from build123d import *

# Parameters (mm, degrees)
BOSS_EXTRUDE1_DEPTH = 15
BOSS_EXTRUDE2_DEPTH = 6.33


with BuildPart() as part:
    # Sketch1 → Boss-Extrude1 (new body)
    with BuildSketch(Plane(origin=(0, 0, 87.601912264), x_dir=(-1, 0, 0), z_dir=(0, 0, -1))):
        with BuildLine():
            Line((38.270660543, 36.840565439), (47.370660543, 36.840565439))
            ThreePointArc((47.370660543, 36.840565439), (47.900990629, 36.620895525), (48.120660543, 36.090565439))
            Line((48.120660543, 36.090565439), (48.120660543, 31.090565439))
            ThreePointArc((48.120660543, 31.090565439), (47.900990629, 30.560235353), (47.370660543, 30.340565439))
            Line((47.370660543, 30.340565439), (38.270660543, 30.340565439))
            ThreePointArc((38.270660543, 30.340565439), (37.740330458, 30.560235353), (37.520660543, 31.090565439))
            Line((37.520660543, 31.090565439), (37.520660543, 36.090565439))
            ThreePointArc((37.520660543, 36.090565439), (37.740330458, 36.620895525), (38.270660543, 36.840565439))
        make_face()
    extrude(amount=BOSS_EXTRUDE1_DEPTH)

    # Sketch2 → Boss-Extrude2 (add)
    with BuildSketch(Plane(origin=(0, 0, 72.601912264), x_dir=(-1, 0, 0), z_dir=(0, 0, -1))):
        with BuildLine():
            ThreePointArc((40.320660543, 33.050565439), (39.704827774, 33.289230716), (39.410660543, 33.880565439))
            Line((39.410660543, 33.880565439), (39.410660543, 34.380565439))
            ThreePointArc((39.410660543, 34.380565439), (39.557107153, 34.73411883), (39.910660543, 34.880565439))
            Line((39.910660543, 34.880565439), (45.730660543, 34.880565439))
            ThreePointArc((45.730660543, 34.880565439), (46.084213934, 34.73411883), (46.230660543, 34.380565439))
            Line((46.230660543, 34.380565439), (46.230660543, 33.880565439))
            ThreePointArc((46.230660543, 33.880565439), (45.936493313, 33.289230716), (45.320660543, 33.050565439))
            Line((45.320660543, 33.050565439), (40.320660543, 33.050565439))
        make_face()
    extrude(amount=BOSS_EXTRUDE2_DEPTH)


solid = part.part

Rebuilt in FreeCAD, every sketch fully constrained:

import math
import FreeCAD as App
import Part
import Sketcher

V = App.Vector

doc = App.newDocument("Part")
body = doc.addObject("PartDesign::Body", "Body")

# Sketch on XY plane
sketch1 = doc.addObject("Sketcher::SketchObject", "Sketch")
body.addObject(sketch1)
sketch1.AttachmentSupport = (doc.XY_Plane, [""])
sketch1.MapMode = "FlatFace"
sketch1.AttachmentOffset = App.Placement(V(0, 0, 87.601912), App.Rotation())
sketch1.addGeometry([
    Part.LineSegment(V(-47.370661, 36.840565, 0), V(-38.270661, 36.840565, 0)),  # 0
    Part.ArcOfCircle(Part.Circle(V(-38.270661, 36.090565, 0), V(0, 0, 1), 0.75), math.radians(0), math.radians(90)),  # 1
    Part.LineSegment(V(-37.520661, 36.090565, 0), V(-37.520661, 31.090565, 0)),  # 2
    Part.ArcOfCircle(Part.Circle(V(-38.270661, 31.090565, 0), V(0, 0, 1), 0.75), math.radians(-90), math.radians(0)),  # 3
    Part.LineSegment(V(-38.270661, 30.340565, 0), V(-47.370661, 30.340565, 0)),  # 4
    Part.ArcOfCircle(Part.Circle(V(-47.370661, 31.090565, 0), V(0, 0, 1), 0.75), math.radians(180), math.radians(270)),  # 5
    Part.LineSegment(V(-48.120661, 31.090565, 0), V(-48.120661, 36.090565, 0)),  # 6
    Part.ArcOfCircle(Part.Circle(V(-47.370661, 36.090565, 0), V(0, 0, 1), 0.75), math.radians(90), math.radians(180)),  # 7
], False)
sketch1.addConstraint([
    Sketcher.Constraint("Tangent", 0, 2, 1, 2),
    Sketcher.Constraint("Tangent", 1, 1, 2, 1),
    Sketcher.Constraint("Tangent", 2, 2, 3, 2),
    Sketcher.Constraint("Tangent", 3, 1, 4, 1),
    Sketcher.Constraint("Tangent", 4, 2, 5, 2),
    Sketcher.Constraint("Tangent", 5, 1, 6, 1),
    Sketcher.Constraint("Tangent", 6, 2, 7, 2),
    Sketcher.Constraint("Tangent", 7, 1, 0, 1),
    Sketcher.Constraint("Horizontal", 0),
    Sketcher.Constraint("Vertical", 2),
    Sketcher.Constraint("Horizontal", 4),
    Sketcher.Constraint("Vertical", 6),
    Sketcher.Constraint("Equal", 1, 3),
    Sketcher.Constraint("Equal", 3, 5),
    Sketcher.Constraint("Equal", 5, 7),
    Sketcher.Constraint("DistanceY", 2, 2, 2, 1, 5.0),
    Sketcher.Constraint("Radius", 1, 0.75),
    Sketcher.Constraint("DistanceX", 0, 1, 0, 2, 9.1),
    Sketcher.Constraint("DistanceX", 1, 3, -1, 1, 38.270661),
    Sketcher.Constraint("DistanceY", -1, 1, 1, 3, 36.090565),
])
pad1 = doc.addObject("PartDesign::Pad", "Pad")
body.addObject(pad1)
pad1.Profile = sketch1
pad1.Length = 15
pad1.Reversed = True

# Sketch on XY plane
sketch2 = doc.addObject("Sketcher::SketchObject", "Sketch001")
body.addObject(sketch2)
sketch2.AttachmentSupport = (doc.XY_Plane, [""])
sketch2.MapMode = "FlatFace"
sketch2.AttachmentOffset = App.Placement(V(0, 0, 72.601912), App.Rotation())
sketch2.addGeometry([
    Part.ArcOfCircle(Part.Circle(V(-40.320661, 33.964421, 0), V(0, 0, 1), 0.913855), math.radians(-90), math.radians(-5.26487)),  # 0
    Part.LineSegment(V(-40.320661, 33.050565, 0), V(-45.320661, 33.050565, 0)),  # 1
    Part.ArcOfCircle(Part.Circle(V(-45.320661, 33.964421, 0), V(0, 0, 1), 0.913855), math.radians(-174.73513), math.radians(-90)),  # 2
    Part.LineSegment(V(-46.230661, 33.880565, 0), V(-46.230661, 34.380565, 0)),  # 3
    Part.ArcOfCircle(Part.Circle(V(-45.730661, 34.380565, 0), V(0, 0, 1), 0.5), math.radians(90), math.radians(180)),  # 4
    Part.LineSegment(V(-45.730661, 34.880565, 0), V(-39.910661, 34.880565, 0)),  # 5
    Part.ArcOfCircle(Part.Circle(V(-39.910661, 34.380565, 0), V(0, 0, 1), 0.5), math.radians(0), math.radians(90)),  # 6
    Part.LineSegment(V(-39.410661, 34.380565, 0), V(-39.410661, 33.880565, 0)),  # 7
], False)
sketch2.addConstraint([
    Sketcher.Constraint("Tangent", 0, 1, 1, 1),
    Sketcher.Constraint("Tangent", 1, 2, 2, 2),
    Sketcher.Constraint("Coincident", 2, 1, 3, 1),
    Sketcher.Constraint("Tangent", 3, 2, 4, 2),
    Sketcher.Constraint("Tangent", 4, 1, 5, 1),
    Sketcher.Constraint("Tangent", 5, 2, 6, 2),
    Sketcher.Constraint("Tangent", 6, 1, 7, 1),
    Sketcher.Constraint("Coincident", 7, 2, 0, 2),
    Sketcher.Constraint("Horizontal", 1),
    Sketcher.Constraint("Vertical", 3),
    Sketcher.Constraint("Horizontal", 5),
    Sketcher.Constraint("Vertical", 7),
    Sketcher.Constraint("Equal", 0, 2),
    Sketcher.Constraint("Equal", 4, 6),
    Sketcher.Constraint("Horizontal", 2, 1, 7, 2),
    Sketcher.Constraint("Radius", 4, 0.5),
    Sketcher.Constraint("DistanceX", 1, 2, 1, 1, 5.0),
    Sketcher.Constraint("DistanceY", 3, 1, 3, 2, 0.5),
    Sketcher.Constraint("DistanceX", 5, 1, 5, 2, 5.82),
    Sketcher.Constraint("DistanceY", 0, 1, 6, 3, 1.33),
    Sketcher.Constraint("DistanceX", 0, 3, -1, 1, 40.320661),
    Sketcher.Constraint("DistanceY", -1, 1, 0, 3, 33.964421),
])
pad2 = doc.addObject("PartDesign::Pad", "Pad001")
body.addObject(pad2)
pad2.Profile = sketch2
pad2.Length = 6.33
pad2.Reversed = True

doc.recompute()
